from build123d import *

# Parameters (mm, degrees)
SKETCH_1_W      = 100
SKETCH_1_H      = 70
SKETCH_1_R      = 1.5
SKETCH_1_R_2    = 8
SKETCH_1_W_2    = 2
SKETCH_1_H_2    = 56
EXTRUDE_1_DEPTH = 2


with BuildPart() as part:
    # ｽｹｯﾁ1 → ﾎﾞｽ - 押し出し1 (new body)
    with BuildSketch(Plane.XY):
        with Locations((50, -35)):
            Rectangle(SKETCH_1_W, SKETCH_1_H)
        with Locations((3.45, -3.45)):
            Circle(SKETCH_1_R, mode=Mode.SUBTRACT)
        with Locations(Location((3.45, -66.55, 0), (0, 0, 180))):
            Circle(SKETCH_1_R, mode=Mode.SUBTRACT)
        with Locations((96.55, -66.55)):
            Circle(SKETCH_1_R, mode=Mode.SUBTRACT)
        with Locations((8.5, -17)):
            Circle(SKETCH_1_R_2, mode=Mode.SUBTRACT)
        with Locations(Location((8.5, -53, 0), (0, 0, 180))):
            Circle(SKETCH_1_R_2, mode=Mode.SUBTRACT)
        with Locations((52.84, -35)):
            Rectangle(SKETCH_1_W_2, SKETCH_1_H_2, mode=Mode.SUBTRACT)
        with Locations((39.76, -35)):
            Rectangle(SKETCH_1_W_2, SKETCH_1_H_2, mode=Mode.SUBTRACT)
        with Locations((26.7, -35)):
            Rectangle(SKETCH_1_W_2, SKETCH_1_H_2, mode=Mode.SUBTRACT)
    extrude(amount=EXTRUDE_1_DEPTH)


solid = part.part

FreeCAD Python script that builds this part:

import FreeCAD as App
import Part
import Sketcher

doc = App.newDocument("Part")
body = doc.addObject("PartDesign::Body", "Body")

# Sketch on XY plane
sketch1 = body.newObject("Sketcher::SketchObject", "Sketch")
sketch1.AttachmentSupport = (doc.getObject("XY_Plane"), [""])
sketch1.MapMode = "FlatFace"
sketch1.addGeometry([
    Part.LineSegment(App.Vector(0, 0, 0), App.Vector(0, -70, 0)),  # 0
    Part.LineSegment(App.Vector(0, -70, 0), App.Vector(100, -70, 0)),  # 1
    Part.LineSegment(App.Vector(100, -70, 0), App.Vector(100, 0, 0)),  # 2
    Part.LineSegment(App.Vector(100, 0, 0), App.Vector(0, 0, 0)),  # 3
    Part.Circle(App.Vector(3.5, -66.5, 0), App.Vector(0, 0, 1), 1.5),  # 4
    Part.Circle(App.Vector(8.5, -53, 0), App.Vector(0, 0, 1), 8),  # 5
    Part.Circle(App.Vector(96.5, -66.5, 0), App.Vector(0, 0, 1), 1.5),  # 6
    Part.LineSegment(App.Vector(27.7, -63, 0), App.Vector(25.7, -63, 0)),  # 7
    Part.LineSegment(App.Vector(25.7, -63, 0), App.Vector(25.7, -7, 0)),  # 8
    Part.LineSegment(App.Vector(25.7, -7, 0), App.Vector(27.7, -7, 0)),  # 9
    Part.LineSegment(App.Vector(27.7, -7, 0), App.Vector(27.7, -63, 0)),  # 10
    Part.LineSegment(App.Vector(40.8, -63, 0), App.Vector(38.8, -63, 0)),  # 11
    Part.LineSegment(App.Vector(38.8, -63, 0), App.Vector(38.8, -7, 0)),  # 12
    Part.LineSegment(App.Vector(38.8, -7, 0), App.Vector(40.8, -7, 0)),  # 13
    Part.LineSegment(App.Vector(40.8, -7, 0), App.Vector(40.8, -63, 0)),  # 14
    Part.Circle(App.Vector(8.5, -17, 0), App.Vector(0, 0, 1), 8),  # 15
    Part.Circle(App.Vector(3.5, -3.5, 0), App.Vector(0, 0, 1), 1.5),  # 16
    Part.LineSegment(App.Vector(53.8, -63, 0), App.Vector(51.8, -63, 0)),  # 17
    Part.LineSegment(App.Vector(51.8, -63, 0), App.Vector(51.8, -7, 0)),  # 18
    Part.LineSegment(App.Vector(51.8, -7, 0), App.Vector(53.8, -7, 0)),  # 19
    Part.LineSegment(App.Vector(53.8, -7, 0), App.Vector(53.8, -63, 0)),  # 20
], False)
sketch1.addConstraint([
    Sketcher.Constraint("Coincident", 0, 2, 1, 1),
    Sketcher.Constraint("Coincident", 1, 2, 2, 1),
    Sketcher.Constraint("Coincident", 2, 2, 3, 1),
    Sketcher.Constraint("Coincident", 3, 2, 0, 1),
    Sketcher.Constraint("Coincident", 7, 2, 8, 1),
    Sketcher.Constraint("Coincident", 8, 2, 9, 1),
    Sketcher.Constraint("Coincident", 9, 2, 10, 1),
    Sketcher.Constraint("Coincident", 10, 2, 7, 1),
    Sketcher.Constraint("Coincident", 11, 2, 12, 1),
    Sketcher.Constraint("Coincident", 12, 2, 13, 1),
    Sketcher.Constraint("Coincident", 13, 2, 14, 1),
    Sketcher.Constraint("Coincident", 14, 2, 11, 1),
    Sketcher.Constraint("Coincident", 17, 2, 18, 1),
    Sketcher.Constraint("Coincident", 18, 2, 19, 1),
    Sketcher.Constraint("Coincident", 19, 2, 20, 1),
    Sketcher.Constraint("Coincident", 20, 2, 17, 1),
    Sketcher.Constraint("Vertical", 0),
    Sketcher.Constraint("Horizontal", 1),
    Sketcher.Constraint("Vertical", 2),
    Sketcher.Constraint("Horizontal", 3),
    Sketcher.Constraint("Horizontal", 7),
    Sketcher.Constraint("Vertical", 8),
    Sketcher.Constraint("Horizontal", 9),
    Sketcher.Constraint("Vertical", 10),
    Sketcher.Constraint("Horizontal", 11),
    Sketcher.Constraint("Vertical", 12),
    Sketcher.Constraint("Horizontal", 13),
    Sketcher.Constraint("Vertical", 14),
    Sketcher.Constraint("Horizontal", 17),
    Sketcher.Constraint("Vertical", 18),
    Sketcher.Constraint("Horizontal", 19),
    Sketcher.Constraint("Vertical", 20),
    Sketcher.Constraint("Coincident", 3, 2, -1, 1),
    Sketcher.Constraint("Equal", 4, 6),
    Sketcher.Constraint("Equal", 5, 15),
    Sketcher.Constraint("Equal", 6, 16),
    Sketcher.Constraint("Horizontal", 4, 3, 6, 3),
    Sketcher.Constraint("Horizontal", 10, 2, 11, 2),
    Sketcher.Constraint("Horizontal", 9, 2, 12, 2),
    Sketcher.Constraint("Horizontal", 14, 2, 17, 2),
    Sketcher.Constraint("Horizontal", 13, 2, 18, 2),
    Sketcher.Constraint("Vertical", 5, 3, 15, 3),
    Sketcher.Constraint("Vertical", 4, 3, 16, 3),
    Sketcher.Constraint("Equal", 9, 11),
    Sketcher.Constraint("Equal", 13, 17),
    Sketcher.Constraint("Diameter", 4, 3.0),
    Sketcher.Constraint("Diameter", 5, 16.0),
    Sketcher.Constraint("DistanceX", 1, 1, 1, 2, 100.0),
    Sketcher.Constraint("DistanceX", 7, 2, 7, 1, 2.0),
    Sketcher.Constraint("DistanceY", 0, 2, 0, 1, 70.0),
    Sketcher.Constraint("DistanceY", 8, 1, 8, 2, 56.0),
    Sketcher.Constraint("DistanceY", 5, 3, -1, 1, 53.0),
    Sketcher.Constraint("DistanceY", 15, 3, -1, 1, 17.0),
    Sketcher.Constraint("DistanceY", 7, 2, -1, 1, 63.0),
    Sketcher.Constraint("DistanceX", -1, 1, 5, 3, 8.5),
    Sketcher.Constraint("DistanceX", -1, 1, 7, 2, 25.7),
    Sketcher.Constraint("DistanceX", 4, 3, 6, 3, 93.1),
    Sketcher.Constraint("DistanceY", 4, 3, 16, 3, 63.1),
    Sketcher.Constraint("DistanceX", -1, 1, 4, 3, 3.45),
    Sketcher.Constraint("DistanceY", 4, 3, -1, 1, 66.55),
    Sketcher.Constraint("DistanceX", -1, 1, 11, 2, 38.76),
    Sketcher.Constraint("DistanceX", -1, 1, 17, 2, 51.84),
])
pad1 = body.newObject("PartDesign::Pad", "Pad")
pad1.Profile = sketch1
pad1.Length = 2

doc.recompute()
